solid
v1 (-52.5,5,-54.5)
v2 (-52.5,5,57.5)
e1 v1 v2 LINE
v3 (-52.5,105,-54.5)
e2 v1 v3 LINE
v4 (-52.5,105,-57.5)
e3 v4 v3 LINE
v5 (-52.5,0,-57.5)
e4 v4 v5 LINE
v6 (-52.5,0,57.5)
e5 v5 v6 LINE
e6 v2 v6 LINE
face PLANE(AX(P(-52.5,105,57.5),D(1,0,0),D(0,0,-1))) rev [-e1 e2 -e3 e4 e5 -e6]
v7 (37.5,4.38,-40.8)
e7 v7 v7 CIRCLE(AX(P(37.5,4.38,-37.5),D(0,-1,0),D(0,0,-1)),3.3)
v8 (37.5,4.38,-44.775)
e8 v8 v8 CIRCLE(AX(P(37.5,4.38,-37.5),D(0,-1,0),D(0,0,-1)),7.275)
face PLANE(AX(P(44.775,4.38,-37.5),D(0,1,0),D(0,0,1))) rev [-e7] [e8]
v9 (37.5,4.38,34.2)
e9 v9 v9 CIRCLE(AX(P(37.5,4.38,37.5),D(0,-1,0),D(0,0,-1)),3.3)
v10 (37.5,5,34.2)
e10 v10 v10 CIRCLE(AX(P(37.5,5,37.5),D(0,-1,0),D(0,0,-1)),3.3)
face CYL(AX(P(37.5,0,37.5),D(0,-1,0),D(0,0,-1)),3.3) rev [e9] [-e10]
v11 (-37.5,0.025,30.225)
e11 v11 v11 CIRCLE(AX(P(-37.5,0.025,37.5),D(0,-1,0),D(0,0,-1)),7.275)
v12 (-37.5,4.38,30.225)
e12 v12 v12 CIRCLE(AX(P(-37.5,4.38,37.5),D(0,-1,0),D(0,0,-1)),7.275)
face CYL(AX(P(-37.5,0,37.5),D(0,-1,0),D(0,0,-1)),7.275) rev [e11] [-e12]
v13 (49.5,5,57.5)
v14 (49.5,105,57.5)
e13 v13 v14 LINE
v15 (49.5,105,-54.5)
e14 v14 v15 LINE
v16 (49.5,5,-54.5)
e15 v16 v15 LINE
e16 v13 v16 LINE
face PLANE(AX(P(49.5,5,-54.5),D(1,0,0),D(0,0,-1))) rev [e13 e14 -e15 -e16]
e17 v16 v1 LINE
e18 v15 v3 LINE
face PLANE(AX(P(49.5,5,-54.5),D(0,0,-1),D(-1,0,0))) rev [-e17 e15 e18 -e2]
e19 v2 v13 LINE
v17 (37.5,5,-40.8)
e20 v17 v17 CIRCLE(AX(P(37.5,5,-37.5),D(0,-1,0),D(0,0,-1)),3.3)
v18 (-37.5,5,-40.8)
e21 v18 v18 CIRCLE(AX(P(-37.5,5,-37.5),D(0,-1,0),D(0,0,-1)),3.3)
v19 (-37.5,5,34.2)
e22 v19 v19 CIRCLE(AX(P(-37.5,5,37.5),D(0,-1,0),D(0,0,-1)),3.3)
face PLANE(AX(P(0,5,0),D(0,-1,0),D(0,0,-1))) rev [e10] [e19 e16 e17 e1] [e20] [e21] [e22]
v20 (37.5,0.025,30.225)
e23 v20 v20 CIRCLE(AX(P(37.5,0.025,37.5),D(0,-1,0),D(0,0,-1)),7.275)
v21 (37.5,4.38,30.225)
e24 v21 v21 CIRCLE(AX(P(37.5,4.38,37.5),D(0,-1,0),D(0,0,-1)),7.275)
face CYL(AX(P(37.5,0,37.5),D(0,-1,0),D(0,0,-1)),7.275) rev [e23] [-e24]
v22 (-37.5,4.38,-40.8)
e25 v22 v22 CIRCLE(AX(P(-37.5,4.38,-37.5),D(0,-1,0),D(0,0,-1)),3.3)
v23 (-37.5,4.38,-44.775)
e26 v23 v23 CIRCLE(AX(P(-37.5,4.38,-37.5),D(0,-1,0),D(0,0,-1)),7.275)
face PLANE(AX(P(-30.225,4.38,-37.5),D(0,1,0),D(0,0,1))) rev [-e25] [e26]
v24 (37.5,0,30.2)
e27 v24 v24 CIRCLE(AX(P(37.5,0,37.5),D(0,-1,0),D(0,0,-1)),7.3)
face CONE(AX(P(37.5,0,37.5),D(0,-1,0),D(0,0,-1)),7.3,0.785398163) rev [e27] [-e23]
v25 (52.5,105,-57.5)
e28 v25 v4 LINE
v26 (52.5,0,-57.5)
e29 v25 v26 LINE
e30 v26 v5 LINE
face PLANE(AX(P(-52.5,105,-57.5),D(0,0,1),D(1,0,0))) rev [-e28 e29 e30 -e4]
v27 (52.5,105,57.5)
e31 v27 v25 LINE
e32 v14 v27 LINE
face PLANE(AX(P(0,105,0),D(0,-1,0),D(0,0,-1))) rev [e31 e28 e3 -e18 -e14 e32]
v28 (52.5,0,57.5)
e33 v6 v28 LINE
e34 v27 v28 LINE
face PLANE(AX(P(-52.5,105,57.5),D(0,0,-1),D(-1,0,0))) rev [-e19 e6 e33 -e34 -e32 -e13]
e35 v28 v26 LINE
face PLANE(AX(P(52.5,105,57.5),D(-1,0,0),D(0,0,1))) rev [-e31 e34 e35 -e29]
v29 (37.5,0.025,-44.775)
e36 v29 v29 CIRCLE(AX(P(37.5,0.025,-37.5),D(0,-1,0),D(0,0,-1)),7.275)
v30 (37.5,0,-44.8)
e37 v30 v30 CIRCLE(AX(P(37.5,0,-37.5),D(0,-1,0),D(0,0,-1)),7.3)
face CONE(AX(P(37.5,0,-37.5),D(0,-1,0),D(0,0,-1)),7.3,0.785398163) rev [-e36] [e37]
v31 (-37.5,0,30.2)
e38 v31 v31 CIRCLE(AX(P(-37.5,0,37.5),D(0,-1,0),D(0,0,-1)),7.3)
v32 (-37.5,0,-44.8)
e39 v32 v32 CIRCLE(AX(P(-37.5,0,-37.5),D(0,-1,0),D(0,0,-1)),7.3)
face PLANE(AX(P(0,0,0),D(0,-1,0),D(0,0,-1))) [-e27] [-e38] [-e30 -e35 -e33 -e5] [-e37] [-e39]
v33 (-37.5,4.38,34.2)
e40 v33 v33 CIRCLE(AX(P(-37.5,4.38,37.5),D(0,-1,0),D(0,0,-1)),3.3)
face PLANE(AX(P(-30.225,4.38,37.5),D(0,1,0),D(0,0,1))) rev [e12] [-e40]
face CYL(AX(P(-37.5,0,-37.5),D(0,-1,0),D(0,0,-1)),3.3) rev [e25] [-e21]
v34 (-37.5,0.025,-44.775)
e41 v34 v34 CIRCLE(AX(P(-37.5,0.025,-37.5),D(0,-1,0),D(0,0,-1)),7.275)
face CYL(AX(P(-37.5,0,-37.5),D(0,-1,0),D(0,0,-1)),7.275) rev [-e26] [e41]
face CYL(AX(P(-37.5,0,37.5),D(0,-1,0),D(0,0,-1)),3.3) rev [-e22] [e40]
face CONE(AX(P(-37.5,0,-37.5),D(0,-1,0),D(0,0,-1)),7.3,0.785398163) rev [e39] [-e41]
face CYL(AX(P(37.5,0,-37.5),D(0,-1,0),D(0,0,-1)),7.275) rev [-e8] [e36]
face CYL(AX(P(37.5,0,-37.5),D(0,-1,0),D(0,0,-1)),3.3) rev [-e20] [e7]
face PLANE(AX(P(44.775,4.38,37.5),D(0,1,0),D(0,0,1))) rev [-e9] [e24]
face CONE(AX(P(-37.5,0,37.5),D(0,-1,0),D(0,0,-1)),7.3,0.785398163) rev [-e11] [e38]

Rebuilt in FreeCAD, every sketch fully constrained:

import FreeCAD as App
import Part
import Sketcher
from FreeCAD import Vector
Q = App.Units.Quantity

doc = App.newDocument("Part")
body = doc.addObject("PartDesign::Body", "Body")

sketch1 = body.newObject("Sketcher::SketchObject", "Sketch")
sketch1.AttachmentSupport = (doc.getObject("XZ_Plane"), [""])
sketch1.MapMode = "FlatFace"
sketch1.addGeometry(Part.LineSegment(Vector(-52, -58, 0), Vector(-52, 58, 0)), False)
sketch1.addGeometry(Part.LineSegment(Vector(-52, 58, 0), Vector(52, 58, 0)), False)
sketch1.addGeometry(Part.LineSegment(Vector(52, 58, 0), Vector(52, -58, 0)), False)
sketch1.addGeometry(Part.LineSegment(Vector(52, -58, 0), Vector(-52, -58, 0)), False)
sketch1.addConstraint(Sketcher.Constraint("Coincident", 0, 2, 1, 1))
sketch1.addConstraint(Sketcher.Constraint("Coincident", 1, 2, 2, 1))
sketch1.addConstraint(Sketcher.Constraint("Coincident", 2, 2, 3, 1))
sketch1.addConstraint(Sketcher.Constraint("Coincident", 3, 2, 0, 1))
sketch1.addConstraint(Sketcher.Constraint("Vertical", 0))
sketch1.addConstraint(Sketcher.Constraint("Horizontal", 1))
sketch1.addConstraint(Sketcher.Constraint("Vertical", 2))
sketch1.addConstraint(Sketcher.Constraint("Horizontal", 3))
sketch1.addConstraint(Sketcher.Constraint("Symmetric", 0, 2, 2, 2, -1, 1))
sketch1.addConstraint(Sketcher.Constraint("DistanceX", 1, 1, 1, 2, 105.0))
sketch1.addConstraint(Sketcher.Constraint("DistanceY", 0, 1, 0, 2, 115.0))
pad1 = body.newObject("PartDesign::Pad", "Pad")
pad1.Profile = sketch1
pad1.Length = 105
pad1.Reversed = True

sketch2 = body.newObject("Sketcher::SketchObject", "Sketch001")
sketch2.AttachmentSupport = (doc.getObject("XZ_Plane"), [""])
sketch2.MapMode = "FlatFace"
sketch2.AttachmentOffset = App.Placement(Vector(0, 0, -105), App.Rotation())
sketch2.addGeometry(Part.LineSegment(Vector(-52, -54, 0), Vector(-52, 58, 0)), False)
sketch2.addGeometry(Part.LineSegment(Vector(-52, 58, 0), Vector(50, 58, 0)), False)
sketch2.addGeometry(Part.LineSegment(Vector(50, 58, 0), Vector(50, -54, 0)), False)
sketch2.addGeometry(Part.LineSegment(Vector(50, -54, 0), Vector(-52, -54, 0)), False)
sketch2.addConstraint(Sketcher.Constraint("Coincident", 0, 2, 1, 1))
sketch2.addConstraint(Sketcher.Constraint("Coincident", 1, 2, 2, 1))
sketch2.addConstraint(Sketcher.Constraint("Coincident", 2, 2, 3, 1))
sketch2.addConstraint(Sketcher.Constraint("Coincident", 3, 2, 0, 1))
sketch2.addConstraint(Sketcher.Constraint("Vertical", 0))
sketch2.addConstraint(Sketcher.Constraint("Horizontal", 1))
sketch2.addConstraint(Sketcher.Constraint("Vertical", 2))
sketch2.addConstraint(Sketcher.Constraint("Horizontal", 3))
sketch2.addConstraint(Sketcher.Constraint("DistanceX", 1, 1, 1, 2, 102.0))
sketch2.addConstraint(Sketcher.Constraint("DistanceY", 0, 1, 0, 2, 112.0))
sketch2.addConstraint(Sketcher.Constraint("DistanceX", 0, 2, -1, 1, 52.5))
sketch2.addConstraint(Sketcher.Constraint("DistanceY", -1, 1, 0, 2, 57.5))
pocket1 = body.newObject("PartDesign::Pocket", "Pocket")
pocket1.Profile = sketch2
pocket1.Length = 100
pocket1.Reversed = True

sketch3 = body.newObject("Sketcher::SketchObject", "Sketch002")
sketch3.AttachmentSupport = (doc.getObject("YZ_Plane"), [""])
sketch3.MapMode = "FlatFace"
sketch3.AttachmentOffset = App.Placement(Vector(0, 0, 37.5), App.Rotation())
sketch3.addGeometry(Part.LineSegment(Vector(105, 37.5, 0), Vector(0, 37.5, 0)), False)
sketch3.addGeometry(Part.LineSegment(Vector(0, 37.5, 0), Vector(0, 30.2, 0)), False)
sketch3.addGeometry(Part.LineSegment(Vector(0, 30.2, 0), Vector(0.025, 30.225, 0)), False)
sketch3.addGeometry(Part.LineSegment(Vector(0.025, 30.225, 0), Vector(4.38, 30.225, 0)), False)
sketch3.addGeometry(Part.LineSegment(Vector(4.38, 30.225, 0), Vector(4.38, 34.2, 0)), False)
sketch3.addGeometry(Part.LineSegment(Vector(4.38, 34.2, 0), Vector(105, 34.2, 0)), False)
sketch3.addGeometry(Part.LineSegment(Vector(105, 34.2, 0), Vector(105, 37.5, 0)), False)
sketch3.addGeometry(Part.LineSegment(Vector(0, 37.5, 0), Vector(105, 37.5, 0)), True)
sketch3.addConstraint(Sketcher.Constraint("Coincident", 0, 2, 1, 1))
sketch3.addConstraint(Sketcher.Constraint("Coincident", 1, 2, 2, 1))
sketch3.addConstraint(Sketcher.Constraint("Coincident", 2, 2, 3, 1))
sketch3.addConstraint(Sketcher.Constraint("Coincident", 3, 2, 4, 1))
sketch3.addConstraint(Sketcher.Constraint("Coincident", 4, 2, 5, 1))
sketch3.addConstraint(Sketcher.Constraint("Coincident", 5, 2, 6, 1))
sketch3.addConstraint(Sketcher.Constraint("Coincident", 6, 2, 0, 1))
sketch3.addConstraint(Sketcher.Constraint("Horizontal", 0))
sketch3.addConstraint(Sketcher.Constraint("Vertical", 1))
sketch3.addConstraint(Sketcher.Constraint("Horizontal", 3))
sketch3.addConstraint(Sketcher.Constraint("Vertical", 4))
sketch3.addConstraint(Sketcher.Constraint("Horizontal", 5))
sketch3.addConstraint(Sketcher.Constraint("Vertical", 6))
sketch3.addConstraint(Sketcher.Constraint("Horizontal", 7))
sketch3.addConstraint(Sketcher.Constraint("Coincident", 7, 1, 0, 2))
sketch3.addConstraint(Sketcher.Constraint("PointOnObject", 0, 2, -2))
sketch3.addConstraint(Sketcher.Constraint("Vertical", 5, 2, 7, 2))
sketch3.addConstraint(Sketcher.Constraint("DistanceX", 0, 2, 0, 1, 105.0))
sketch3.addConstraint(Sketcher.Constraint("Angle", 2, Q("45 deg")))
sketch3.addConstraint(Sketcher.Constraint("DistanceY", 1, 2, 1, 1, 7.3))
sketch3.addConstraint(Sketcher.Constraint("DistanceY", 6, 1, 6, 2, 3.3))
sketch3.addConstraint(Sketcher.Constraint("DistanceX", 5, 1, 5, 2, 100.62))
sketch3.addConstraint(Sketcher.Constraint("DistanceY", -1, 1, 0, 2, 37.5))
sketch3.addConstraint(Sketcher.Constraint("DistanceX", 3, 1, 3, 2, 4.355))
groove = body.newObject("PartDesign::Groove", "Groove")
groove.Profile = sketch3
groove.ReferenceAxis = (sketch3, ["Axis0"])
groove.Angle = 360
doc.recompute()

linearpattern = body.newObject("PartDesign::LinearPattern", "LinearPattern")
linearpattern.Originals = [groove]
linearpattern.Direction = (doc.getObject("Z_Axis"), [""])
linearpattern.Mode = "offset"
linearpattern.Offset = 75
linearpattern.Occurrences = 2
linearpattern.Reversed = True
body.Tip = linearpattern
doc.recompute()

datumline = body.newObject("PartDesign::Line", "DatumLine")
datumline.Placement = App.Placement(Vector(0, 0, 0), App.Rotation(Vector(0, 0, 1), Vector(-0.707106781, 0, -0.707106781)))
linearpattern2 = body.newObject("PartDesign::LinearPattern", "LinearPattern001")
linearpattern2.Originals = [groove]
linearpattern2.Direction = (datumline, [""])
linearpattern2.Mode = "offset"
linearpattern2.Offset = 106.066017
linearpattern2.Occurrences = 2
body.Tip = linearpattern2
doc.recompute()

linearpattern3 = body.newObject("PartDesign::LinearPattern", "LinearPattern002")
linearpattern3.Originals = [groove]
linearpattern3.Direction = (doc.getObject("X_Axis"), [""])
linearpattern3.Mode = "offset"
linearpattern3.Offset = 75
linearpattern3.Occurrences = 2
linearpattern3.Reversed = True
body.Tip = linearpattern3

doc.recompute()
